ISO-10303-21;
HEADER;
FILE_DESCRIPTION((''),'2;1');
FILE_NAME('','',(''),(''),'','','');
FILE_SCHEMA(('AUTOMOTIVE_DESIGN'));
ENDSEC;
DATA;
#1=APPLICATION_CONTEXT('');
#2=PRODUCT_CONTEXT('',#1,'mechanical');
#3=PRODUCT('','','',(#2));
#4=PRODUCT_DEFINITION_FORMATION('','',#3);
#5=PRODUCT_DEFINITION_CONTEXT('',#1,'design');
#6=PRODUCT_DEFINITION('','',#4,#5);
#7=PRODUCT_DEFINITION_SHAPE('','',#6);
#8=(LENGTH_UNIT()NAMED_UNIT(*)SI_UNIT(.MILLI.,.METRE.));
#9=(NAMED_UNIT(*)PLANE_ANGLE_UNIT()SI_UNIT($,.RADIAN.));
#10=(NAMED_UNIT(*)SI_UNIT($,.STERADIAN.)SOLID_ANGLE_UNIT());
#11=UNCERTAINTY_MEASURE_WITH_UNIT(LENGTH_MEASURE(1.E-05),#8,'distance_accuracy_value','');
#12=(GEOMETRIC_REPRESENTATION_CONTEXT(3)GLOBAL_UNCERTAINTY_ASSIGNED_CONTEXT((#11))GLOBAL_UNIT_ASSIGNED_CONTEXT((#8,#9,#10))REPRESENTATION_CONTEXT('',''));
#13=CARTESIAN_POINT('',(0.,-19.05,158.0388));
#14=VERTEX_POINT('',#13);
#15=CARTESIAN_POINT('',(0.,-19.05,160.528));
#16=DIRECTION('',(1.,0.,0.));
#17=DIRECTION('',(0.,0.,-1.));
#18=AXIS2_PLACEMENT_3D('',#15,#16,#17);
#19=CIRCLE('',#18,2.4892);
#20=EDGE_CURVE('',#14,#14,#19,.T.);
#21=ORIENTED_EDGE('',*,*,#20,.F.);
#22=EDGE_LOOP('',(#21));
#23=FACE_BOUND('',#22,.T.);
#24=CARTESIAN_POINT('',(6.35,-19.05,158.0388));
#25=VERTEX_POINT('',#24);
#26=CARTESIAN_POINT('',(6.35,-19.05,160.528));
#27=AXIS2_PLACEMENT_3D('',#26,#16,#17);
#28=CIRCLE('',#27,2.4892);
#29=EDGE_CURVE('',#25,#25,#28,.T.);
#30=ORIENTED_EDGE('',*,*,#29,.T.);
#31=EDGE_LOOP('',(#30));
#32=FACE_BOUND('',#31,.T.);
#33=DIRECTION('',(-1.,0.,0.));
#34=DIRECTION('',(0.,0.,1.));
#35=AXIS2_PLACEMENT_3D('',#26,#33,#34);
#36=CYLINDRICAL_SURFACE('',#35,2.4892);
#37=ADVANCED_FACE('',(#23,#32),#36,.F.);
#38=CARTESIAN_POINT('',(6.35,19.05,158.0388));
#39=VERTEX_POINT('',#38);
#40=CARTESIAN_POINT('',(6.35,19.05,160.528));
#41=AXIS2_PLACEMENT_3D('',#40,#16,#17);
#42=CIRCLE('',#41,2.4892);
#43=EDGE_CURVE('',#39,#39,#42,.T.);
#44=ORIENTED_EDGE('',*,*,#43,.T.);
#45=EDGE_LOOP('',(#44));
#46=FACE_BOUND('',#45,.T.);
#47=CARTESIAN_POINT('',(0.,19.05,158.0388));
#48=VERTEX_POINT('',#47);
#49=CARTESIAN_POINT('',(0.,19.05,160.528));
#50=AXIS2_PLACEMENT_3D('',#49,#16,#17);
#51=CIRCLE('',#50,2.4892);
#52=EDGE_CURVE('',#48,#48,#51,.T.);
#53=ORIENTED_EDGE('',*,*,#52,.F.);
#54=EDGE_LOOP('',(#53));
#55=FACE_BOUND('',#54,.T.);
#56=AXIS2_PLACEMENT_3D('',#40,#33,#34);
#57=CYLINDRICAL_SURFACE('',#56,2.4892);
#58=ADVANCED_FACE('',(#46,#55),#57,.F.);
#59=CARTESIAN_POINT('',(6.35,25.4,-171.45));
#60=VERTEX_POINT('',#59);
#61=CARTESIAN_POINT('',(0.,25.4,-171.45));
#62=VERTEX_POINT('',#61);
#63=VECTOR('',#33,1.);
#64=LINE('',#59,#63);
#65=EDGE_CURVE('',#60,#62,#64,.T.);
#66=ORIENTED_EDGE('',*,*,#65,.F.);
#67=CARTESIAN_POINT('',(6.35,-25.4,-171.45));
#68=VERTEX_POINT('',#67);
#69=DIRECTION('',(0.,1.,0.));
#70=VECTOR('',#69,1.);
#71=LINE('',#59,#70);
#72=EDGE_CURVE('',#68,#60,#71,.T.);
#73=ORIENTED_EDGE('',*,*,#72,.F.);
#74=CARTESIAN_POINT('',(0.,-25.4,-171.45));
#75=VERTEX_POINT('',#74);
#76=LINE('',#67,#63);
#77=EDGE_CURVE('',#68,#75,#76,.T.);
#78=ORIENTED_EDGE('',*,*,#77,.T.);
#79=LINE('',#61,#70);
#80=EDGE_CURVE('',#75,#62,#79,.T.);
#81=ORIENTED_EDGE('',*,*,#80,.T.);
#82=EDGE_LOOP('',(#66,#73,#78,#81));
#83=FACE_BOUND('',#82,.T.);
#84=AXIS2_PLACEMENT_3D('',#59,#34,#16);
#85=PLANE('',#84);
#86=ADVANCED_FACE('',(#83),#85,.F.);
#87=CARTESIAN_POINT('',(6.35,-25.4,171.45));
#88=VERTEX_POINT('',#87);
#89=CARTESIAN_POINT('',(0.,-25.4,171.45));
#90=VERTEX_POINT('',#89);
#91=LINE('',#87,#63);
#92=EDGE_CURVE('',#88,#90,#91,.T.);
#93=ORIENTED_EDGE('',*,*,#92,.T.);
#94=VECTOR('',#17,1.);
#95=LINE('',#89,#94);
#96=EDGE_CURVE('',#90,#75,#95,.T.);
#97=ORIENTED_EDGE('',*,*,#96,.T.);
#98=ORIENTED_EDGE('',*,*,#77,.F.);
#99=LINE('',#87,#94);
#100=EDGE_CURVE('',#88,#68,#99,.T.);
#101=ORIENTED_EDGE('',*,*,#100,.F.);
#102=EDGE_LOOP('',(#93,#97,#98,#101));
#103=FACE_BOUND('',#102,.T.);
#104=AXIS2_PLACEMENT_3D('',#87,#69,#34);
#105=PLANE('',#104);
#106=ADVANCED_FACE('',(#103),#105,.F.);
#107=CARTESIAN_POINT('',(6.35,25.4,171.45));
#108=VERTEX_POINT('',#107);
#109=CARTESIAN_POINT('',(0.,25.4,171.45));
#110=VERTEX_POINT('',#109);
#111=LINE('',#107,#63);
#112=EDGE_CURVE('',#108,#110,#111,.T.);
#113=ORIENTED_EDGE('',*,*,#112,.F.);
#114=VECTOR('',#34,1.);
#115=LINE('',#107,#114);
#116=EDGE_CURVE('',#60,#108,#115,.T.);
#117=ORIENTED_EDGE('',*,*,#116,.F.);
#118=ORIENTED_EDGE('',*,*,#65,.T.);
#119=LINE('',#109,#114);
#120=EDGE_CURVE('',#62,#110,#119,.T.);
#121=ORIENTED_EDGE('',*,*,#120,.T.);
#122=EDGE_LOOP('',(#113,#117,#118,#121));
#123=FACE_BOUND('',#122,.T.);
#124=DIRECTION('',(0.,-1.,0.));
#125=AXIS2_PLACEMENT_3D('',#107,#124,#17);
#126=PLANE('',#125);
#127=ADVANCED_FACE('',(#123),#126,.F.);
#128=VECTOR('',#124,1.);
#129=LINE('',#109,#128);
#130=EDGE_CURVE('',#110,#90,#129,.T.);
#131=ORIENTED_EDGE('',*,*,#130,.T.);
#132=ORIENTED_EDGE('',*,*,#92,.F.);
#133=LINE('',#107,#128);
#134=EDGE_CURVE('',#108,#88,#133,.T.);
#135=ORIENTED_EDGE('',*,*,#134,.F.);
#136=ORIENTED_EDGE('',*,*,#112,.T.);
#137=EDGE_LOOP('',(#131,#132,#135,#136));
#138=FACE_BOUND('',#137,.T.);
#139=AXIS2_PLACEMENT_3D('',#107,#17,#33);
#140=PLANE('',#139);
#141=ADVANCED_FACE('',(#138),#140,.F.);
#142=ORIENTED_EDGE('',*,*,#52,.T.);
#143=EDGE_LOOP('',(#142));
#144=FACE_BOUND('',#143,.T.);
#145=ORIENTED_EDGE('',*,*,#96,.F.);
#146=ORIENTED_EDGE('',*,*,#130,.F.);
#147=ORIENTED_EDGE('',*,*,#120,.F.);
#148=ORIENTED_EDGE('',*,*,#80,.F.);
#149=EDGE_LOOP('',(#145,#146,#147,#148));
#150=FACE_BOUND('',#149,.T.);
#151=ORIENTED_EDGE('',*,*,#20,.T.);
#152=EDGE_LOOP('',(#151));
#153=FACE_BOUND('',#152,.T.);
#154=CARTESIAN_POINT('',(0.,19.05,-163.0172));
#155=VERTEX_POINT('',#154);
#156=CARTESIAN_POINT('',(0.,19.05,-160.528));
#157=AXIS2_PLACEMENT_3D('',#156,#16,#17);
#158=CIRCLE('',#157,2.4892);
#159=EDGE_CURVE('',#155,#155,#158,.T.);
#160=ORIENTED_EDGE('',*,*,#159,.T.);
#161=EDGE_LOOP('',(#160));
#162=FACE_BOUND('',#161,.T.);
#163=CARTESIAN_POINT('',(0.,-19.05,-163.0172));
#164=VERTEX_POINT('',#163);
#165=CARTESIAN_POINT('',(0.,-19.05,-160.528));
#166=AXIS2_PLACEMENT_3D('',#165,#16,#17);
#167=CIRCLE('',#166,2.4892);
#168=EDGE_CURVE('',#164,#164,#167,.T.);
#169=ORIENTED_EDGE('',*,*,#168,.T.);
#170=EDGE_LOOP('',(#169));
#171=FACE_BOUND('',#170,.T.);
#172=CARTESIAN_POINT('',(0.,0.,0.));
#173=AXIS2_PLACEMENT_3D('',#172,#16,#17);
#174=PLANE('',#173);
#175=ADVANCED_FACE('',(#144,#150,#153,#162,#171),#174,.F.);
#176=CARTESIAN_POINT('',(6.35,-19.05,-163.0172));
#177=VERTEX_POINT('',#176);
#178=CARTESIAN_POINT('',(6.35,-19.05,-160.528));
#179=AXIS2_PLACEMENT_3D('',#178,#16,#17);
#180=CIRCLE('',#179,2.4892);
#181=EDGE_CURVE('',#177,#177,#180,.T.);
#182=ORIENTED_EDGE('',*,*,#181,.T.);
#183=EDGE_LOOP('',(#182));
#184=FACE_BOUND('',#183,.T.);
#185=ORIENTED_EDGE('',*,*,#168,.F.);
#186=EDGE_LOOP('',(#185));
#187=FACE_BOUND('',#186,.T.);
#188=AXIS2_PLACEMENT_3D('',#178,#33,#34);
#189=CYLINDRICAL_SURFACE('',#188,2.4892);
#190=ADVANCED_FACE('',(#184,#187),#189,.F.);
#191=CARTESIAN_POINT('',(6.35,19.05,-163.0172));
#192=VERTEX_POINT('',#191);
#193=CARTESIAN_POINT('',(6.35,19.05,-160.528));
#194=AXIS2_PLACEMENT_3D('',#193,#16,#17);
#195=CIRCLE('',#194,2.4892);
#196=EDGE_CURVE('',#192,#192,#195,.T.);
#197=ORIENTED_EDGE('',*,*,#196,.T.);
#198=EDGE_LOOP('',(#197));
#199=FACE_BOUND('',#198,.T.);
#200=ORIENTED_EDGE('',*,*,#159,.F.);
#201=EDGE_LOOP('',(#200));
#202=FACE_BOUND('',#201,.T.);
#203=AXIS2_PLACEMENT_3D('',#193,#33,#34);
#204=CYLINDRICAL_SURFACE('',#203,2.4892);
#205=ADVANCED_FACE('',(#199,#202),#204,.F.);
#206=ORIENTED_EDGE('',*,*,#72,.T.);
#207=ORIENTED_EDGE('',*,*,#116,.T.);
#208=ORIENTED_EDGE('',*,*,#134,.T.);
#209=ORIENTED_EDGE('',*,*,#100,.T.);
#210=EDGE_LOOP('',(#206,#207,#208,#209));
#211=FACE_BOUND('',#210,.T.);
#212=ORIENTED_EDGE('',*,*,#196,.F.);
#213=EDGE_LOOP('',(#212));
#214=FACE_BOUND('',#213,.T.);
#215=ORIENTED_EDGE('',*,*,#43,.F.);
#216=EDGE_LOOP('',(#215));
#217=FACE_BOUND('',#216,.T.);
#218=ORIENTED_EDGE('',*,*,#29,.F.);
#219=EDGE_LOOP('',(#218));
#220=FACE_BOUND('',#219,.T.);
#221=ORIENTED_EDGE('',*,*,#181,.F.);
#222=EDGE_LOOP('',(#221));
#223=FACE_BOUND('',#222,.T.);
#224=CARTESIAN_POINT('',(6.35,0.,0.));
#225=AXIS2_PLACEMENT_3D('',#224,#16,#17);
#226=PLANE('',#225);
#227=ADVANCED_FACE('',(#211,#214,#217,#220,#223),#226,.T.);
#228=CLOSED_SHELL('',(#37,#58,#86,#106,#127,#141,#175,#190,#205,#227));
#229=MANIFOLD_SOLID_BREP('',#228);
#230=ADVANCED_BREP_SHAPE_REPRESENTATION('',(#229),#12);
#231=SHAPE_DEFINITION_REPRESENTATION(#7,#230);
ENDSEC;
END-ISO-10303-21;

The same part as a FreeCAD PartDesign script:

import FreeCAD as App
import Part
import Sketcher
from FreeCAD import Vector
Q = App.Units.Quantity

doc = App.newDocument("Part")
body = doc.addObject("PartDesign::Body", "Body")

# Sketch on YZ plane
sketch1 = body.newObject("Sketcher::SketchObject", "Sketch")
sketch1.AttachmentSupport = (doc.getObject("YZ_Plane"), [""])
sketch1.MapMode = "FlatFace"
sketch1.addGeometry(Part.LineSegment(Vector(25.4, 171.4, 0), Vector(-25.4, 171.4, 0)), False)
sketch1.addGeometry(Part.LineSegment(Vector(-25.4, 171.4, 0), Vector(-25.4, -171.4, 0)), False)
sketch1.addGeometry(Part.LineSegment(Vector(-25.4, -171.4, 0), Vector(25.4, -171.4, 0)), False)
sketch1.addGeometry(Part.LineSegment(Vector(25.4, -171.4, 0), Vector(25.4, 171.4, 0)), False)
sketch1.addGeometry(Part.Circle(Vector(-19.1, 160.5, 0), Vector(0, 0, 1), 2.5), False)
sketch1.addGeometry(Part.Circle(Vector(-19.1, -160.5, 0), Vector(0, 0, 1), 2.5), False)
sketch1.addGeometry(Part.Circle(Vector(19.1, 160.5, 0), Vector(0, 0, 1), 2.5), False)
sketch1.addGeometry(Part.Circle(Vector(19.1, -160.5, 0), Vector(0, 0, 1), 2.5), False)
sketch1.addConstraint(Sketcher.Constraint("Coincident", 0, 2, 1, 1))
sketch1.addConstraint(Sketcher.Constraint("Coincident", 1, 2, 2, 1))
sketch1.addConstraint(Sketcher.Constraint("Coincident", 2, 2, 3, 1))
sketch1.addConstraint(Sketcher.Constraint("Coincident", 3, 2, 0, 1))
sketch1.addConstraint(Sketcher.Constraint("Horizontal", 0))
sketch1.addConstraint(Sketcher.Constraint("Vertical", 1))
sketch1.addConstraint(Sketcher.Constraint("Horizontal", 2))
sketch1.addConstraint(Sketcher.Constraint("Vertical", 3))
sketch1.addConstraint(Sketcher.Constraint("Equal", 4, 5))
sketch1.addConstraint(Sketcher.Constraint("Equal", 5, 6))
sketch1.addConstraint(Sketcher.Constraint("Equal", 6, 7))
sketch1.addConstraint(Sketcher.Constraint("Symmetric", 5, 3, 6, 3, -1, 1))
sketch1.addConstraint(Sketcher.Constraint("Symmetric", 4, 3, 7, 3, -1, 1))
sketch1.addConstraint(Sketcher.Constraint("Symmetric", 0, 2, 2, 2, -1, 1))
sketch1.addConstraint(Sketcher.Constraint("Symmetric", 4, 3, 6, 3, -2))
sketch1.addConstraint(Sketcher.Constraint("DistanceX", 0, 2, 0, 1, Q("2 in")))
sketch1.addConstraint(Sketcher.Constraint("Diameter", 4, Q("0.196 in")))
sketch1.addConstraint(Sketcher.Constraint("DistanceY", 1, 2, 1, 1, Q("13.5 in")))
sketch1.addConstraint(Sketcher.Constraint("DistanceX", 4, 3, 6, 3, Q("1.5 in")))
sketch1.addConstraint(Sketcher.Constraint("DistanceY", -1, 1, 4, 3, Q("6.32 in")))
pad1 = body.newObject("PartDesign::Pad", "Pad")
pad1.Profile = sketch1
pad1.Length = Q("0.25 in")

doc.recompute()
